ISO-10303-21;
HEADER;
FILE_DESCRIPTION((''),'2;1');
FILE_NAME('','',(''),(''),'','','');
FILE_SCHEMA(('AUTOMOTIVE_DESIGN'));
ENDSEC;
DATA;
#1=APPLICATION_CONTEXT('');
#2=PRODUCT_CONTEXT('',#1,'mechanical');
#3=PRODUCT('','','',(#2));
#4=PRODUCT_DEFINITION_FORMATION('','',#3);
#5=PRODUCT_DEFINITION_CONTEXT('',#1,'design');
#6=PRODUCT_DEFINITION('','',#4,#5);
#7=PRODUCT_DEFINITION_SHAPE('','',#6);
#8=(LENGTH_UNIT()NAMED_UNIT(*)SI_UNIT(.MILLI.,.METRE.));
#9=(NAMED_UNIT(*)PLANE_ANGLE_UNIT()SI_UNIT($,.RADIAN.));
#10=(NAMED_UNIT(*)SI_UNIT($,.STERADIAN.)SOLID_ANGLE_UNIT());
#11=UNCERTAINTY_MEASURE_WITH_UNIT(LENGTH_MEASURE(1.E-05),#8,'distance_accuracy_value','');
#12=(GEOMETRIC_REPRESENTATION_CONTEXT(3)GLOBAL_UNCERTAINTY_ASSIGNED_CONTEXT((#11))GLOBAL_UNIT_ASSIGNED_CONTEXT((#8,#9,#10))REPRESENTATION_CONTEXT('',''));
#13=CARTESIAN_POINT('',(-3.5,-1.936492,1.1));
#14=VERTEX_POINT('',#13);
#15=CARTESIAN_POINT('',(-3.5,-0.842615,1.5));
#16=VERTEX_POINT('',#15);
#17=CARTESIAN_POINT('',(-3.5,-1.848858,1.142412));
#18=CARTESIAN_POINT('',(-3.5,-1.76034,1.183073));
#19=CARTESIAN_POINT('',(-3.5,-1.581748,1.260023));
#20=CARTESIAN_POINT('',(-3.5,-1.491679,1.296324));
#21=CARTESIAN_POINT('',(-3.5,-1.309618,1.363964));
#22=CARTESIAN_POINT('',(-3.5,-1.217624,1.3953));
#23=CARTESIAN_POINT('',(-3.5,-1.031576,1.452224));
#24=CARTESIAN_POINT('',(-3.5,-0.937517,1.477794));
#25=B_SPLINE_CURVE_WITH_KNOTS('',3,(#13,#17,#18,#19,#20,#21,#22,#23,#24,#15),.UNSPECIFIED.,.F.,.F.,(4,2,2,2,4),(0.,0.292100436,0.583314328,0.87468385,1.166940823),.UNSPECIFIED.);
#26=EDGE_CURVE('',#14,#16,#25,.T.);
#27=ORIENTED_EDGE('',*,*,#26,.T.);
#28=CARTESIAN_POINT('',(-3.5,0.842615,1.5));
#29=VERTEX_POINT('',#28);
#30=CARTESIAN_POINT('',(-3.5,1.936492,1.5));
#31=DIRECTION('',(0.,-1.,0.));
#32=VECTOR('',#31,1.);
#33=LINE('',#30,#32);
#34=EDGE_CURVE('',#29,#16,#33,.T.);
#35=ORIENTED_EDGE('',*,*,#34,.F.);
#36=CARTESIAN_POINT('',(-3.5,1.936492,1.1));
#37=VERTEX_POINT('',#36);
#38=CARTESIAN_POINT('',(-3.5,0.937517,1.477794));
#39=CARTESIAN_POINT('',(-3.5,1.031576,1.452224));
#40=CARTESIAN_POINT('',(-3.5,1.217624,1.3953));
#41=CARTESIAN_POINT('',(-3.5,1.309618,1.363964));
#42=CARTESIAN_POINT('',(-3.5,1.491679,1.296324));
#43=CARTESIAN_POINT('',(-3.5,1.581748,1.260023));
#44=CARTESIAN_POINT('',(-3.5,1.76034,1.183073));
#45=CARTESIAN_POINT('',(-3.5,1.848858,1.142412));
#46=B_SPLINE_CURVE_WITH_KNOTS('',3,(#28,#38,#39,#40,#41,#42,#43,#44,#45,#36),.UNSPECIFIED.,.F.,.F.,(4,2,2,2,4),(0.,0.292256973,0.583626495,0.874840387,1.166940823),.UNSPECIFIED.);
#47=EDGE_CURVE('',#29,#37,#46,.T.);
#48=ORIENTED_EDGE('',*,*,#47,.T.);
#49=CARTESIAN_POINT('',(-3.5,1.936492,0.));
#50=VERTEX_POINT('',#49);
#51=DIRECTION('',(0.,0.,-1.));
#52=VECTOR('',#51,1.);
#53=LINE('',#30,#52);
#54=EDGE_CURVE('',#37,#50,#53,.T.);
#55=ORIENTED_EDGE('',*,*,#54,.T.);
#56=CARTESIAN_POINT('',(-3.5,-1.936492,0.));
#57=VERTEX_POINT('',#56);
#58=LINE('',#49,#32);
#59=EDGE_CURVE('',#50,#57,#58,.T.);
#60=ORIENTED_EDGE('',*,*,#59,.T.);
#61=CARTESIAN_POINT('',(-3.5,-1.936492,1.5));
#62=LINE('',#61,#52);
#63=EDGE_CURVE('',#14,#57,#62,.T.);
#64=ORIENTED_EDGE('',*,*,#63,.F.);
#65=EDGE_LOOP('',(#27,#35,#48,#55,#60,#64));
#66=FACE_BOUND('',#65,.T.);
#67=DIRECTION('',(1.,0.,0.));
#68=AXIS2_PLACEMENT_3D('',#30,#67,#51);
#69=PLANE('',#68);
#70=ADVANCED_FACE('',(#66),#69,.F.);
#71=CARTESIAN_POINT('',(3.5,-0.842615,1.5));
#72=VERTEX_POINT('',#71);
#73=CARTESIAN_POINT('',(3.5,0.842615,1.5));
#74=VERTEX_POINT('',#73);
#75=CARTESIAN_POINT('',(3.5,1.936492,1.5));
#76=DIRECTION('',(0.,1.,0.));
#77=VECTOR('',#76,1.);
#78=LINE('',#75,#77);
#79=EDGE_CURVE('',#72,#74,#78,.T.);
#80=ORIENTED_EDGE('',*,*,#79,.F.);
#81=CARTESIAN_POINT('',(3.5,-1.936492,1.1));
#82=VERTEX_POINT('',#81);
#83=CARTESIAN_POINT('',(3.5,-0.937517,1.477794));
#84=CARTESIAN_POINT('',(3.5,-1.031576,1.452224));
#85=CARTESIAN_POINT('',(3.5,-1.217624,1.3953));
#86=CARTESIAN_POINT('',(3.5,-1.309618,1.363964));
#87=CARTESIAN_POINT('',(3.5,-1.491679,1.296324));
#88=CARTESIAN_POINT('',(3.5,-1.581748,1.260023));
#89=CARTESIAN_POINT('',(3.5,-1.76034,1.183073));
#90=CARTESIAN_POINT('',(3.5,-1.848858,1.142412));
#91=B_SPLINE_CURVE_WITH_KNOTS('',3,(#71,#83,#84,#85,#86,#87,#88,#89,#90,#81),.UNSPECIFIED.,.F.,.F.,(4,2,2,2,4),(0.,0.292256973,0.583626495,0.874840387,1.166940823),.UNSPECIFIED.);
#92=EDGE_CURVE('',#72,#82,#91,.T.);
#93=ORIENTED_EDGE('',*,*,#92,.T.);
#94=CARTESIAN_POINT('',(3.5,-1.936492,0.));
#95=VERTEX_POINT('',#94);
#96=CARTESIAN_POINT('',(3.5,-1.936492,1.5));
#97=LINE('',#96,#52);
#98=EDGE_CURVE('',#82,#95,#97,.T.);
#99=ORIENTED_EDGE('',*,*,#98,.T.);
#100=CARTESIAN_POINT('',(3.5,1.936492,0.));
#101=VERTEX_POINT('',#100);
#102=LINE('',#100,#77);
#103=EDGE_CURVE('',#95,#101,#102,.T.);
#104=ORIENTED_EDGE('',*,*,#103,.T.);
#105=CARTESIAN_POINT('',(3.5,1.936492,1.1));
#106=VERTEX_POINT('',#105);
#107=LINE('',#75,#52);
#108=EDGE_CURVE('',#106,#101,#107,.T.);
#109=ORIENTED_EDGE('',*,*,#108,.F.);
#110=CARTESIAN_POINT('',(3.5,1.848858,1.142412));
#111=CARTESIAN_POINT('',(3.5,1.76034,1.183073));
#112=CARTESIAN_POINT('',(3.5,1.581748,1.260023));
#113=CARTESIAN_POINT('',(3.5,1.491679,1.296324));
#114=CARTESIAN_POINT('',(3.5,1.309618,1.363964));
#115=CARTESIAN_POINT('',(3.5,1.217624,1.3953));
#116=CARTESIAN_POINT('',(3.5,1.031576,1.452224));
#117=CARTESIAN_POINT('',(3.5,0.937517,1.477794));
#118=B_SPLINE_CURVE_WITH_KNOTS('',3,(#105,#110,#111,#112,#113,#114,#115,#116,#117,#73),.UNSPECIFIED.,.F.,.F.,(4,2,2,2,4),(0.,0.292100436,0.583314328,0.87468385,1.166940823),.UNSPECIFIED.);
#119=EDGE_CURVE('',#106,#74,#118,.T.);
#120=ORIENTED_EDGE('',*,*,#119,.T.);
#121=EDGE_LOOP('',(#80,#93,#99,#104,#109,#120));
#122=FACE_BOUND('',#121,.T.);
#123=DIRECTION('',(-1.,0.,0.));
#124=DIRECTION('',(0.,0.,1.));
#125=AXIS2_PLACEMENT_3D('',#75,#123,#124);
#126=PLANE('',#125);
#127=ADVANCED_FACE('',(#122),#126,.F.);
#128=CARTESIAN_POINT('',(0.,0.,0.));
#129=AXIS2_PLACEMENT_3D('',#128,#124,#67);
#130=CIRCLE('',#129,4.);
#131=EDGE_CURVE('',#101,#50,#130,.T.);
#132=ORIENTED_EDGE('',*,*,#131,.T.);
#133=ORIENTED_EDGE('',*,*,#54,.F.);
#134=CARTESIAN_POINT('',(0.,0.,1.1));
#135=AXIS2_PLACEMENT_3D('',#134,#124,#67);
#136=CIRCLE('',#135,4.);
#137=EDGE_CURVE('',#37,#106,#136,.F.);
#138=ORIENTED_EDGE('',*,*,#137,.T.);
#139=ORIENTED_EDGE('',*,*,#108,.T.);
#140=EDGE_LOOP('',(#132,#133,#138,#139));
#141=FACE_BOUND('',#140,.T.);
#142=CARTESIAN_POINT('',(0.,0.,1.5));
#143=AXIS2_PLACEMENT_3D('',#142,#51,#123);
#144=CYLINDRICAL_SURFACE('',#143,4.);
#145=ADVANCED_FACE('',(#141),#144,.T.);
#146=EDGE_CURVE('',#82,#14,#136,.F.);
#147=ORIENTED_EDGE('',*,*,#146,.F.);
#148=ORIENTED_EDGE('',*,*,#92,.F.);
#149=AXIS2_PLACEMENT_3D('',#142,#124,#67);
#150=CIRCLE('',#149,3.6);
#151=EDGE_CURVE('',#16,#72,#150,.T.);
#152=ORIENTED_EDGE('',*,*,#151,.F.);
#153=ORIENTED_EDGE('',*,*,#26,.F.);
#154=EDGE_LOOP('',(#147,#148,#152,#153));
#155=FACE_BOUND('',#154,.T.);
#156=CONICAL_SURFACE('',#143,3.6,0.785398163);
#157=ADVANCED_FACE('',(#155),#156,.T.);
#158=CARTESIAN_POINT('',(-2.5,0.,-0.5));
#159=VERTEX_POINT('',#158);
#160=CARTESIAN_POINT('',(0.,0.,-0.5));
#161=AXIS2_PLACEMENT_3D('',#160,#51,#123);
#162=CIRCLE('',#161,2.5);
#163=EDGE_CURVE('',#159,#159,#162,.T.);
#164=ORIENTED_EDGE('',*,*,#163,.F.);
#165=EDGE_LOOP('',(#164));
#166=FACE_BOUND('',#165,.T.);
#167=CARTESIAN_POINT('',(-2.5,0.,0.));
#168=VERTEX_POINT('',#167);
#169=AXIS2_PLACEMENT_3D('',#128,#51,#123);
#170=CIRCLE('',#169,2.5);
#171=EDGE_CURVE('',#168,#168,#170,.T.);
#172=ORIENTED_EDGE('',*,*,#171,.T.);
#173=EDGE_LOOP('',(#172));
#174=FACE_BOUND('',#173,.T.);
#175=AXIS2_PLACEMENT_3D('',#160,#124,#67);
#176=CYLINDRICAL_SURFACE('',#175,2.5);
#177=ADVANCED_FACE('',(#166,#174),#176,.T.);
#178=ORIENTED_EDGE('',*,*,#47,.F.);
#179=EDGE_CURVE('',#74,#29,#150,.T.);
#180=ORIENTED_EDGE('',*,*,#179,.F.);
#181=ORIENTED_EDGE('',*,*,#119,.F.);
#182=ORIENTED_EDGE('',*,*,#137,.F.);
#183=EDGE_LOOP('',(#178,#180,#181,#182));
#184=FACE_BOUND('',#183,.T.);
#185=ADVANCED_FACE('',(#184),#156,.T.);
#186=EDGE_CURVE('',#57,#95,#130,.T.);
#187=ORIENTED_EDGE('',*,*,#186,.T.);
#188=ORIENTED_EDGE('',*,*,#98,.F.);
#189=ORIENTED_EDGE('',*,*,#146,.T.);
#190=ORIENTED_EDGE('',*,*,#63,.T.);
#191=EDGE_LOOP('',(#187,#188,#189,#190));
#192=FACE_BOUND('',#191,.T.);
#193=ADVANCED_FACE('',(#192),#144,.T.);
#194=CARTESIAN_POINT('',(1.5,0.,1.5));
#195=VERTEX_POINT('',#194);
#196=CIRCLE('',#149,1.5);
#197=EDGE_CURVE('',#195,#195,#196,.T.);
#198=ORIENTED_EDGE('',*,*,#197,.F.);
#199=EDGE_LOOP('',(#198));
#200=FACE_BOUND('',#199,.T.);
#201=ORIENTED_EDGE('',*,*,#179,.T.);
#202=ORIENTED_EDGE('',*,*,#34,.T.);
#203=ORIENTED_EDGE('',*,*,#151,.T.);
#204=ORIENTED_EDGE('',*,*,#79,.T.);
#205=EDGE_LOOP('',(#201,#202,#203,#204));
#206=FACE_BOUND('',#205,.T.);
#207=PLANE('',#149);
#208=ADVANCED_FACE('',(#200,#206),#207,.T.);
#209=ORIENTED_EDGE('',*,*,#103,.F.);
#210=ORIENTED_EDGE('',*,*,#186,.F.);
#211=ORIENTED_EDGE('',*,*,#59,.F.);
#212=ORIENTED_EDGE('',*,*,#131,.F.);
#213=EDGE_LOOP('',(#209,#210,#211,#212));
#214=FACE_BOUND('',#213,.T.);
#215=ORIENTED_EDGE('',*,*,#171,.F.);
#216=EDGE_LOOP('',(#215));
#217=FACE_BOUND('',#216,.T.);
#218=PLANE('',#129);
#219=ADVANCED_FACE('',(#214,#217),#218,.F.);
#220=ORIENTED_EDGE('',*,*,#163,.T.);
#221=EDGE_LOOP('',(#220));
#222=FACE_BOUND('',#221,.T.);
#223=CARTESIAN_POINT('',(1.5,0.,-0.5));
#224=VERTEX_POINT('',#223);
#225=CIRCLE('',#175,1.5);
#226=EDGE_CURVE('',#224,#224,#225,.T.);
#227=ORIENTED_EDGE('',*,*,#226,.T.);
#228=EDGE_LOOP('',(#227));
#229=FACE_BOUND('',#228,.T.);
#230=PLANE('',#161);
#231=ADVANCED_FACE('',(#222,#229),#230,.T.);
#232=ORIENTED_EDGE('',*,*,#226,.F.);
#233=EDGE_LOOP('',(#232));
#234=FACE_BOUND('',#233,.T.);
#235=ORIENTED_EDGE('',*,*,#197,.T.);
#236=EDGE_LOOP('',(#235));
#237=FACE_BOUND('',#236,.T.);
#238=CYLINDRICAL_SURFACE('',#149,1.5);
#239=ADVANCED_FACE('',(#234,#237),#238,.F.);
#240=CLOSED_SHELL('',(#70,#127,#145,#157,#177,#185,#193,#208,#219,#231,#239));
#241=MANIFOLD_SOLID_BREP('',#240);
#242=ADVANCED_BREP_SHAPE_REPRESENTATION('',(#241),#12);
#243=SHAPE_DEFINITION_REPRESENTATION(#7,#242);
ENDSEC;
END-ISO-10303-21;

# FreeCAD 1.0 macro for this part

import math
import FreeCAD as App
import Part
import Sketcher

V = App.Vector


def edges_at(feature, points):
    """Names of the edges that pass closest to the given points."""
    edges = feature.Shape.Edges
    near = lambda p: min(range(len(edges)), key=lambda i: edges[i].distToShape(Part.Vertex(*p))[0])
    return sorted({f"Edge{near(p) + 1}" for p in points})

doc = App.newDocument("Part")
params = doc.addObject("Spreadsheet::Sheet", "Params")
for row, (alias, value) in enumerate([
    ("sketch1_radius", "4 mm"),
    ("pad1_length", "1.5 mm"),
    ("sketch2_diameter", "5 mm"),
    ("pad2_length", "0.5 mm"),
    ("chamfer_size", "0.4 mm"),
    ("sketch3_diameter", "3 mm"),
    ("hole_diameter", "3 mm"),
], start=1):
    params.set(f"A{row}", alias)
    params.set(f"B{row}", "=" + value)
    params.setAlias(f"B{row}", alias)

body = doc.addObject("PartDesign::Body", "Body")

# Sketch on XY plane
sketch1 = doc.addObject("Sketcher::SketchObject", "Sketch")
body.addObject(sketch1)
sketch1.AttachmentSupport = (doc.XY_Plane, [""])
sketch1.MapMode = "FlatFace"
sketch1.addGeometry([
    Part.LineSegment(V(-3.5, 1.9, 0), V(-3.5, -1.9, 0)),
    Part.ArcOfCircle(Part.Circle(V(0, 0, 0), V(0, 0, 1), 4), math.radians(-151), math.radians(-29)),
    Part.LineSegment(V(3.5, -1.9, 0), V(3.5, 1.9, 0)),
    Part.ArcOfCircle(Part.Circle(V(0, 0, 0), V(0, 0, 1), 4), math.radians(29), math.radians(151)),
], False)
sketch1.addConstraint([
    Sketcher.Constraint("Coincident", 0, 2, 1, 1),
    Sketcher.Constraint("Coincident", 1, 2, 2, 1),
    Sketcher.Constraint("Coincident", 2, 2, 3, 1),
    Sketcher.Constraint("Coincident", 3, 2, 0, 1),
    Sketcher.Constraint("Vertical", 0),
    Sketcher.Constraint("Vertical", 2),
    Sketcher.Constraint("Coincident", 1, 3, -1, 1),
    Sketcher.Constraint("Coincident", 3, 3, -1, 1),
    Sketcher.Constraint("Equal", 1, 3),
    Sketcher.Constraint("Horizontal", 0, 2, 1, 2),
    Sketcher.Constraint("Radius", 1, 4.0),
    Sketcher.Constraint("DistanceX", 0, 2, 1, 2, 7.0),
])
sketch1.setExpression("Constraints[10]", "Params.sketch1_radius")
pad1 = doc.addObject("PartDesign::Pad", "Pad")
body.addObject(pad1)
pad1.Profile = sketch1
pad1.setExpression("Length", "Params.pad1_length")

# Sketch on XY plane
sketch2 = doc.addObject("Sketcher::SketchObject", "Sketch001")
body.addObject(sketch2)
sketch2.AttachmentSupport = (doc.XY_Plane, [""])
sketch2.MapMode = "FlatFace"
sketch2.addGeometry(Part.Circle(V(0, 0, 0), V(0, 0, 1), 2.5), False)
sketch2.addConstraint([
    Sketcher.Constraint("Coincident", 0, 3, -1, 1),
    Sketcher.Constraint("Diameter", 0, 5.0),
])
sketch2.setExpression("Constraints[1]", "Params.sketch2_diameter")
pad2 = doc.addObject("PartDesign::Pad", "Pad001")
body.addObject(pad2)
pad2.Profile = sketch2
pad2.setExpression("Length", "Params.pad2_length")
pad2.Reversed = True
doc.recompute()

chamfer = doc.addObject("PartDesign::Chamfer", "Chamfer")
body.addObject(chamfer)
chamfer.Base = (pad2, edges_at(pad2, [(0, 4, 1.5), (0, -4, 1.5)]))
chamfer.setExpression("Size", "Params.chamfer_size")

# Sketch on XY plane
sketch3 = doc.addObject("Sketcher::SketchObject", "Sketch002")
body.addObject(sketch3)
sketch3.AttachmentSupport = (doc.XY_Plane, [""])
sketch3.MapMode = "FlatFace"
sketch3.AttachmentOffset = App.Placement(V(0, 0, 1.5), App.Rotation())
sketch3.addGeometry(Part.Circle(V(0, 0, 0), V(0, 0, 1), 1.5), False)
sketch3.addConstraint([
    Sketcher.Constraint("Coincident", 0, 3, -1, 1),
    Sketcher.Constraint("Diameter", 0, 3.0),
])
sketch3.setExpression("Constraints[1]", "Params.sketch3_diameter")
doc.recompute()
hole = doc.addObject("PartDesign::Hole", "Hole")
body.addObject(hole)
hole.Profile = sketch3
hole.ThreadType = "None"
hole.setExpression("Diameter", "Params.hole_diameter")
hole.DepthType = "ThroughAll"

doc.recompute()
